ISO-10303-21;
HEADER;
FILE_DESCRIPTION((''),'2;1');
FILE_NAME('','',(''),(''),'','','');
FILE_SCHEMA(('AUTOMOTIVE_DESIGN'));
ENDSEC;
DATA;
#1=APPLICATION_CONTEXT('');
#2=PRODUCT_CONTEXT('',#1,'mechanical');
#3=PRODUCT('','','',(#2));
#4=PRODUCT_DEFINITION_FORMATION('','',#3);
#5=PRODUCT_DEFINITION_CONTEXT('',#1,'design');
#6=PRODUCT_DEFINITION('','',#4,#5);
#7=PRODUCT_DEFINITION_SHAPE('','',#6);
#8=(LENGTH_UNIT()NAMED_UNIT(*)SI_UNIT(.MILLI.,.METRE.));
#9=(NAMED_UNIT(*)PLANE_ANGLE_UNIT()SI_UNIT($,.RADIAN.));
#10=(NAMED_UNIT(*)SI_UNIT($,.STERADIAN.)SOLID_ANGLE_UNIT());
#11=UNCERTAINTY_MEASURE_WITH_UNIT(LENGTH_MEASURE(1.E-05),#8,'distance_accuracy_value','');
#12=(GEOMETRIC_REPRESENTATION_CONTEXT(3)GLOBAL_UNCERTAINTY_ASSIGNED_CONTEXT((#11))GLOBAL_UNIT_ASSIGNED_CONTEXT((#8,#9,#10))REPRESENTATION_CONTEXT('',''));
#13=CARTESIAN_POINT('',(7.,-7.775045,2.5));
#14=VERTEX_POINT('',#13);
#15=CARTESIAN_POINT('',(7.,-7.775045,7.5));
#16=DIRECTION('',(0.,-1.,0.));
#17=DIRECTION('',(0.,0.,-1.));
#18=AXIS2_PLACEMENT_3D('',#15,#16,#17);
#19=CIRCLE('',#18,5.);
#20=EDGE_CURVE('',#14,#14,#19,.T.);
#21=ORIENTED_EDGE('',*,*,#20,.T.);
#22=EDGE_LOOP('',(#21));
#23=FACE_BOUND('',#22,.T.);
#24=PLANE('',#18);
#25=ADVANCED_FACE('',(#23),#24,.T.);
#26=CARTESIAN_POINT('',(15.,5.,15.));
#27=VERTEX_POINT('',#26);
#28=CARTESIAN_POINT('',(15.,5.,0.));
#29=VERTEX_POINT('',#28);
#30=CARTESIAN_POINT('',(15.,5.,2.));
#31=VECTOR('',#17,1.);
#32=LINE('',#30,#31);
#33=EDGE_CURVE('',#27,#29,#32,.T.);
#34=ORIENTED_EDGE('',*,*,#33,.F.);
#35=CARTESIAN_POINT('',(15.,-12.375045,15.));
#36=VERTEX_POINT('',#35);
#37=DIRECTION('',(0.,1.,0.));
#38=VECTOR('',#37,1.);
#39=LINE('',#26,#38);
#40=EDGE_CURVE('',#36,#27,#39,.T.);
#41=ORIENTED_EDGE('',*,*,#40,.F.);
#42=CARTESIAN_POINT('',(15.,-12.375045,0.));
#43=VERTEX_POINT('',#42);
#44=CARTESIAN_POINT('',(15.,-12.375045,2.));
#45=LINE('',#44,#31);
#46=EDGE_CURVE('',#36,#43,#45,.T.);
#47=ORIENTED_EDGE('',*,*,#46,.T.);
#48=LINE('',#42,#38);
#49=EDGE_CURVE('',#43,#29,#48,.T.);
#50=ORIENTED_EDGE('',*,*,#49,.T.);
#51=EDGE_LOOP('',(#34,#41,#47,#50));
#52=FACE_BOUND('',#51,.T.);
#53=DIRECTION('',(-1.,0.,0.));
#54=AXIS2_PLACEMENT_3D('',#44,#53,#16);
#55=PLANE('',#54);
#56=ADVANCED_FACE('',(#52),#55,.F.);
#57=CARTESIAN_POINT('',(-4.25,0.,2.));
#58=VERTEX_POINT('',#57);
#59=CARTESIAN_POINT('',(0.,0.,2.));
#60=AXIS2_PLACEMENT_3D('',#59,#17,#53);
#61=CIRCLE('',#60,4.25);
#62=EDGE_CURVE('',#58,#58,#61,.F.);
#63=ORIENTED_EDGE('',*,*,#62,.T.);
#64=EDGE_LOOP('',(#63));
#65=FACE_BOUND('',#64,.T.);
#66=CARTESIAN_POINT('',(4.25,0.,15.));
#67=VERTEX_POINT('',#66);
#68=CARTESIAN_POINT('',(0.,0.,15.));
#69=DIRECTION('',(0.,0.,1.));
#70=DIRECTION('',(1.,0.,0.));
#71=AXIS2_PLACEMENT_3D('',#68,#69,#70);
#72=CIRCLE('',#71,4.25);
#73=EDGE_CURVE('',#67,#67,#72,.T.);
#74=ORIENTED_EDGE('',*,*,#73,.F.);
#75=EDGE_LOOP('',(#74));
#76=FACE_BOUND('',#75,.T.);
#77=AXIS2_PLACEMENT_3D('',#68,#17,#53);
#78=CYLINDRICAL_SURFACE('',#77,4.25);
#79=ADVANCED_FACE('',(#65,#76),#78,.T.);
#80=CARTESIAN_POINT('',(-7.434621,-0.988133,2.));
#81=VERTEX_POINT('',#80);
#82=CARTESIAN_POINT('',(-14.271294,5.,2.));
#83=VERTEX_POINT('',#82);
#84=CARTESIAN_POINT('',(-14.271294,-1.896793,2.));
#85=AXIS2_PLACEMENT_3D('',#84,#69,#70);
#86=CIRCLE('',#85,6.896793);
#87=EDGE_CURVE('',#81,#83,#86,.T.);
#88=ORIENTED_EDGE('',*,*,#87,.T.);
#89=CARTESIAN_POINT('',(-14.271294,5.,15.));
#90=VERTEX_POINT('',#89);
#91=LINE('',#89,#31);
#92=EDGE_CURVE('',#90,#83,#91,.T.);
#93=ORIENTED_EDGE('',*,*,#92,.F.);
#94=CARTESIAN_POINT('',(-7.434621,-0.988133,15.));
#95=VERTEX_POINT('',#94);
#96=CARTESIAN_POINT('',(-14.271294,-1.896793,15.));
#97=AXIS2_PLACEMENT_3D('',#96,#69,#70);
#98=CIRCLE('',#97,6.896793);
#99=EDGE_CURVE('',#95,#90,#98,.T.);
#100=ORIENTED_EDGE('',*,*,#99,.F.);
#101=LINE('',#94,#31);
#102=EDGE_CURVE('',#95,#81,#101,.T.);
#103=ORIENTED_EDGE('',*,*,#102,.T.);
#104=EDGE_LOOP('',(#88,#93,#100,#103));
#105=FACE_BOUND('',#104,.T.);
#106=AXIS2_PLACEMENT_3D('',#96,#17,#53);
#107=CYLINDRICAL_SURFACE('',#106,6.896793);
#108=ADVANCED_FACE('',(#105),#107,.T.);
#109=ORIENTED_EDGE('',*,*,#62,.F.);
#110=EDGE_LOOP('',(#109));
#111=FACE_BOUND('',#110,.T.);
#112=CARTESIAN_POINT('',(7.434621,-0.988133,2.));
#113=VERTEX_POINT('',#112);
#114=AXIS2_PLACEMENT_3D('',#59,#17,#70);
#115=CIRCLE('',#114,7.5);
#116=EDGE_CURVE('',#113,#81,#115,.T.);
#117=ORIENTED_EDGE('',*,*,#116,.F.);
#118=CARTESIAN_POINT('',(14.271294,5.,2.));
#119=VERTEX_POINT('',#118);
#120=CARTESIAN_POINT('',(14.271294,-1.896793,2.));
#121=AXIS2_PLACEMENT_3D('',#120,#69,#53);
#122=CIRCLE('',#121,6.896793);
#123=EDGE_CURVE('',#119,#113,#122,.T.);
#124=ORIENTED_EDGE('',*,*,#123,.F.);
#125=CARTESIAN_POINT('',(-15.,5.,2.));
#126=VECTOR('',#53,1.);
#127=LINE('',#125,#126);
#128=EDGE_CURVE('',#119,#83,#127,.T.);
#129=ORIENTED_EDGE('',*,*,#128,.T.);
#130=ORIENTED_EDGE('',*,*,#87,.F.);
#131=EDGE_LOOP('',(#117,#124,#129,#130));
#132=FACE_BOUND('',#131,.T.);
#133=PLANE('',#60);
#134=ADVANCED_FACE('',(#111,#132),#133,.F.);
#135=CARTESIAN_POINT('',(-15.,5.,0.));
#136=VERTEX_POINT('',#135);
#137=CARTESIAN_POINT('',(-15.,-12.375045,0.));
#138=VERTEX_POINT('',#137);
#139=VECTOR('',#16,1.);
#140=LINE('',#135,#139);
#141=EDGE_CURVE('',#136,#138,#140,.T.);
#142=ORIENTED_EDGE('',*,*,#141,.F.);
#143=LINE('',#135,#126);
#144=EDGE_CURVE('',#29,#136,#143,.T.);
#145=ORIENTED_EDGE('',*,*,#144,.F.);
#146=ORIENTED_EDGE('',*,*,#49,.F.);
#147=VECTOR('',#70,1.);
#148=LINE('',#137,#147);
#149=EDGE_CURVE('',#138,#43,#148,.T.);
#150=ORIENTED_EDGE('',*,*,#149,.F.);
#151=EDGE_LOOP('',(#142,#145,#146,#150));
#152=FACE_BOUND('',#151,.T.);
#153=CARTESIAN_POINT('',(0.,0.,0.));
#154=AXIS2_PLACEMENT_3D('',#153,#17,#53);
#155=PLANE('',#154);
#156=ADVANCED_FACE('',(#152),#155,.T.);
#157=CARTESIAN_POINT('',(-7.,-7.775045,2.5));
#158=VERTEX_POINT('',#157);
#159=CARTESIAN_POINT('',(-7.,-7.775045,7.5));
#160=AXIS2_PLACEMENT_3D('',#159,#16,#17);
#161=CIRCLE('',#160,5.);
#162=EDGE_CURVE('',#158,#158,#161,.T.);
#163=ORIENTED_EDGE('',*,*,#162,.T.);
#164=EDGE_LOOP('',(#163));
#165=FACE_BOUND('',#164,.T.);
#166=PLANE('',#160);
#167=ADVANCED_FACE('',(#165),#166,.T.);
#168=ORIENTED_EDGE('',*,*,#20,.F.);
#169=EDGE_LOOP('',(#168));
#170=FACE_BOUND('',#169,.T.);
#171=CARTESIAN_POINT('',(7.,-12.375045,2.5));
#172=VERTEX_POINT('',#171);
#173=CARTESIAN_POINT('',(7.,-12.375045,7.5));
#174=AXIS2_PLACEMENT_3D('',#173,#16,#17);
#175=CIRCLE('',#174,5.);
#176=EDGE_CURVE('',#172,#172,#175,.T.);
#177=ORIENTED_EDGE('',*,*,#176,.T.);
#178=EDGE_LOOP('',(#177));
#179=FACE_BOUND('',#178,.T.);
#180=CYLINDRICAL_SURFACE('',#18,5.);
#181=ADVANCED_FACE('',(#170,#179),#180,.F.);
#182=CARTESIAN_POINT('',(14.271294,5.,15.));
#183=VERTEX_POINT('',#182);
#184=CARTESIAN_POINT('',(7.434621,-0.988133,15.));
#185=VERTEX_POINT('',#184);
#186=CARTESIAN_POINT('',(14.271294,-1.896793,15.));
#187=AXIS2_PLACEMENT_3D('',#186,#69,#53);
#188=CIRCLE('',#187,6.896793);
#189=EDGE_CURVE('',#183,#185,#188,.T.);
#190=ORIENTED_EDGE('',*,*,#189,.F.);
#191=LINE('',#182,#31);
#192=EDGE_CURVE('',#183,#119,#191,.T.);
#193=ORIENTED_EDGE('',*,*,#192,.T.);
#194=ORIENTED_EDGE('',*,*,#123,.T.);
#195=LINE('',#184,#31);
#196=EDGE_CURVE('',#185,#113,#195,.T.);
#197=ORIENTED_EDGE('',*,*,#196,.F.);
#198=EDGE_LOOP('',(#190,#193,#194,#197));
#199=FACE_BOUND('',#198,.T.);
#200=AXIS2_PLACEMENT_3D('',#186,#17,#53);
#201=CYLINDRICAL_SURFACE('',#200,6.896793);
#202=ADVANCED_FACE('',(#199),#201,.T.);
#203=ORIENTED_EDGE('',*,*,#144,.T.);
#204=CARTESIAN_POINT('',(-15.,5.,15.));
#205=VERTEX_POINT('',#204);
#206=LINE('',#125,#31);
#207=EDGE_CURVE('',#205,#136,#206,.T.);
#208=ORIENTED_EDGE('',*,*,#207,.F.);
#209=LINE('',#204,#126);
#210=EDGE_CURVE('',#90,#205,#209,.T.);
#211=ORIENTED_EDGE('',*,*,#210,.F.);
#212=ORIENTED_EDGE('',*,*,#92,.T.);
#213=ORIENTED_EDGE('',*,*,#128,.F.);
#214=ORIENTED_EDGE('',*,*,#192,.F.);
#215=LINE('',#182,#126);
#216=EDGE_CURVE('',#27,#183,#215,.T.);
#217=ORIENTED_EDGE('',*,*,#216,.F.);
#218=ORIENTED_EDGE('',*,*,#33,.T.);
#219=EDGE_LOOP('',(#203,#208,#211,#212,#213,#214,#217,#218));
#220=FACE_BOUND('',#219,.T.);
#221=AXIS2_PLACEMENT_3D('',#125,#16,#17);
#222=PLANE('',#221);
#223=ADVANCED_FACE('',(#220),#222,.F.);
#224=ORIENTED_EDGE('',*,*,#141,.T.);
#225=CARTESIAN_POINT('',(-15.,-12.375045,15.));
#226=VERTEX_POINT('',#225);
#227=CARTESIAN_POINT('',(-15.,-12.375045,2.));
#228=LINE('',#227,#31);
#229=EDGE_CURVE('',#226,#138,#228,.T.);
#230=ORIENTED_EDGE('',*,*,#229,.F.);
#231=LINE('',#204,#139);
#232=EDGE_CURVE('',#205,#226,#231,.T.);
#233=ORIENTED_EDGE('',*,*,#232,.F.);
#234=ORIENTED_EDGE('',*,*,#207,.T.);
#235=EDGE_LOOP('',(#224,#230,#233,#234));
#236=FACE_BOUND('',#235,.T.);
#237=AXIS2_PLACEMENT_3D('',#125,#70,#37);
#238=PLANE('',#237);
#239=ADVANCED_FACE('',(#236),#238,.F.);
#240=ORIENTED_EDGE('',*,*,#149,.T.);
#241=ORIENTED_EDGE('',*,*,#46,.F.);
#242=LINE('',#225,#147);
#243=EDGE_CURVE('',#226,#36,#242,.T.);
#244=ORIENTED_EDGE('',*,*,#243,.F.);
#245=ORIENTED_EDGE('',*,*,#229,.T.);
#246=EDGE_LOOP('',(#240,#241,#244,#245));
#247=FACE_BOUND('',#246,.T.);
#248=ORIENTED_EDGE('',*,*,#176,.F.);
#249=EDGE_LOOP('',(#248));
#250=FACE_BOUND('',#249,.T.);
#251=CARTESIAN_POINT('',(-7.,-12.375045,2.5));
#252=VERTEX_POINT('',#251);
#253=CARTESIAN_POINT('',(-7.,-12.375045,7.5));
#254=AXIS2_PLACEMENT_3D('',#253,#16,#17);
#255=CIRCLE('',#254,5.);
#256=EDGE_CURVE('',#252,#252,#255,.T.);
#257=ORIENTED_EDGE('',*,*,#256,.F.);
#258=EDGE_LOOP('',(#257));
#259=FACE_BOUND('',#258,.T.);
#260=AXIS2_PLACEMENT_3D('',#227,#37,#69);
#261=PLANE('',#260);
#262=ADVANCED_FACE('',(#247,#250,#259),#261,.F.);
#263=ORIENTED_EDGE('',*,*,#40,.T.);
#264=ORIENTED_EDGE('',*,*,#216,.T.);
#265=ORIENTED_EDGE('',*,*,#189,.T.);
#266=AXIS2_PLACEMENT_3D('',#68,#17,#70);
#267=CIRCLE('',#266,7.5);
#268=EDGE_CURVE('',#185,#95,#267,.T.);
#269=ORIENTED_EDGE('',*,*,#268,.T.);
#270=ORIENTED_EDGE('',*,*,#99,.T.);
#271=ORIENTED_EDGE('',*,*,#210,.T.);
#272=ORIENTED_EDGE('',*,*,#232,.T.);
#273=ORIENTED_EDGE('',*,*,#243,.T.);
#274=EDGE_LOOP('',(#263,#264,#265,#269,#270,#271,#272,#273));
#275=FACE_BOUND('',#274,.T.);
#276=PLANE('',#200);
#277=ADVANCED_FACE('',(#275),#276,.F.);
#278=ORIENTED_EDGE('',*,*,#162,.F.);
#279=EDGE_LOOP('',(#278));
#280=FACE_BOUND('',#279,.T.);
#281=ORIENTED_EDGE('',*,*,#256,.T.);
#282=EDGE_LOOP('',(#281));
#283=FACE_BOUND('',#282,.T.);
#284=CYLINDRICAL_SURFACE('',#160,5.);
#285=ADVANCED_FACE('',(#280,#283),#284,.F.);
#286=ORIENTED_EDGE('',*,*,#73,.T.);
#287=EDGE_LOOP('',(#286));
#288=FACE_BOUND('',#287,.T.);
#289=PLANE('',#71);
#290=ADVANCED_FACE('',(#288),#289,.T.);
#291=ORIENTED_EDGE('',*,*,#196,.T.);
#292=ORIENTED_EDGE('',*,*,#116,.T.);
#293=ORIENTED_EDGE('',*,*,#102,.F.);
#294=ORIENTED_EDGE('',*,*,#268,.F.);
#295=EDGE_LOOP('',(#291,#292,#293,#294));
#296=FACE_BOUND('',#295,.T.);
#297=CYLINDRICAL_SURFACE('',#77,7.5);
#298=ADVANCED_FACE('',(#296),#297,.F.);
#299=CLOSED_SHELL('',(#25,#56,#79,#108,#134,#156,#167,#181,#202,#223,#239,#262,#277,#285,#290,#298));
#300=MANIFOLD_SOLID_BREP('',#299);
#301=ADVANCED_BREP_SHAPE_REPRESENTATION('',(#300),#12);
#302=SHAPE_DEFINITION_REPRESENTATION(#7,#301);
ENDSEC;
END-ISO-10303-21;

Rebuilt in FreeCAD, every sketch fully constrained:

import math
import FreeCAD as App
import Part
import Sketcher
from FreeCAD import Vector


def add_polygon(sketch, points):
    """Adds a closed chain of lines whose ends are joined by coincident constraints."""
    first, n = sketch.GeometryCount, len(points)
    for a, b in zip(points, points[1:] + points[:1]):
        sketch.addGeometry(Part.LineSegment(App.Vector(*a, 0), App.Vector(*b, 0)), False)
    for i in range(n):
        sketch.addConstraint(Sketcher.Constraint("Coincident", first + i, 2, first + (i + 1) % n, 1))

doc = App.newDocument("Part")
body = doc.addObject("PartDesign::Body", "Body")

# Sketch on XY plane
sketch1 = doc.addObject("Sketcher::SketchObject", "Sketch")
body.addObject(sketch1)
sketch1.AttachmentSupport = (doc.XY_Plane, [""])
sketch1.MapMode = "FlatFace"
add_polygon(sketch1, [(-15, 5), (-15, -12), (15, -12), (15, 5)])  # lines 0-3
sketch1.addConstraint(Sketcher.Constraint("Vertical", 0))
sketch1.addConstraint(Sketcher.Constraint("Horizontal", 1))
sketch1.addConstraint(Sketcher.Constraint("Vertical", 2))
sketch1.addConstraint(Sketcher.Constraint("Horizontal", 3))
sketch1.addConstraint(Sketcher.Constraint("DistanceX", 1, 1, 1, 2, 30.0))
sketch1.addConstraint(Sketcher.Constraint("DistanceX", 0, 2, -1, 1, 15.0))
sketch1.addConstraint(Sketcher.Constraint("DistanceY", -1, 1, 2, 2, 5.0))
sketch1.addConstraint(Sketcher.Constraint("DistanceY", 0, 2, 0, 1, 17.375045))
pad1 = doc.addObject("PartDesign::Pad", "Pad")
body.addObject(pad1)
pad1.Profile = sketch1
pad1.Length = 2

# Sketch on XY plane
sketch2 = doc.addObject("Sketcher::SketchObject", "Sketch001")
body.addObject(sketch2)
sketch2.AttachmentSupport = (doc.XY_Plane, [""])
sketch2.MapMode = "FlatFace"
sketch2.AttachmentOffset = App.Placement(Vector(0, 0, 2), App.Rotation())
sketch2.addGeometry(Part.Circle(Vector(0, 0, 0), Vector(0, 0, 1), 4.2), False)
sketch2.addGeometry(Part.LineSegment(Vector(-14.3, 5, 0), Vector(-15, 5, 0)), False)
sketch2.addGeometry(Part.LineSegment(Vector(-15, 5, 0), Vector(-15, -12.4, 0)), False)
sketch2.addGeometry(Part.LineSegment(Vector(-15, -12.4, 0), Vector(15, -12.4, 0)), False)
sketch2.addGeometry(Part.LineSegment(Vector(15, -12.4, 0), Vector(15, 5, 0)), False)
sketch2.addGeometry(Part.LineSegment(Vector(15, 5, 0), Vector(14.3, 5, 0)), False)
sketch2.addGeometry(Part.ArcOfCircle(Part.Circle(Vector(14.3, -1.9, 0), Vector(0, 0, 1), 6.9), math.radians(90), math.radians(172)), False)
sketch2.addGeometry(Part.ArcOfCircle(Part.Circle(Vector(0, 0, 0), Vector(0, 0, 1), 7.5), math.radians(-172), math.radians(-8)), False)
sketch2.addGeometry(Part.ArcOfCircle(Part.Circle(Vector(-14.3, -1.9, 0), Vector(0, 0, 1), 6.9), math.radians(8), math.radians(90)), False)
sketch2.addConstraint(Sketcher.Constraint("Coincident", 1, 2, 2, 1))
sketch2.addConstraint(Sketcher.Constraint("Coincident", 2, 2, 3, 1))
sketch2.addConstraint(Sketcher.Constraint("Coincident", 3, 2, 4, 1))
sketch2.addConstraint(Sketcher.Constraint("Coincident", 4, 2, 5, 1))
sketch2.addConstraint(Sketcher.Constraint("Tangent", 5, 2, 6, 1))
sketch2.addConstraint(Sketcher.Constraint("Tangent", 6, 2, 7, 2))
sketch2.addConstraint(Sketcher.Constraint("Tangent", 7, 1, 8, 1))
sketch2.addConstraint(Sketcher.Constraint("Tangent", 8, 2, 1, 1))
sketch2.addConstraint(Sketcher.Constraint("Horizontal", 1))
sketch2.addConstraint(Sketcher.Constraint("Vertical", 2))
sketch2.addConstraint(Sketcher.Constraint("Horizontal", 3))
sketch2.addConstraint(Sketcher.Constraint("Vertical", 4))
sketch2.addConstraint(Sketcher.Constraint("Horizontal", 5))
sketch2.addConstraint(Sketcher.Constraint("Coincident", 0, 3, -1, 1))
sketch2.addConstraint(Sketcher.Constraint("Coincident", 7, 3, -1, 1))
sketch2.addConstraint(Sketcher.Constraint("Equal", 6, 8))
sketch2.addConstraint(Sketcher.Constraint("Symmetric", 1, 2, 4, 2, -2))
sketch2.addConstraint(Sketcher.Constraint("Diameter", 0, 8.5))
sketch2.addConstraint(Sketcher.Constraint("Radius", 7, 7.5))
sketch2.addConstraint(Sketcher.Constraint("DistanceX", 3, 1, 3, 2, 30.0))
sketch2.addConstraint(Sketcher.Constraint("DistanceY", -1, 1, 1, 2, 5.0))
sketch2.addConstraint(Sketcher.Constraint("Radius", 6, 6.896793))
sketch2.addConstraint(Sketcher.Constraint("DistanceY", 2, 2, 2, 1, 17.375045))
pad2 = doc.addObject("PartDesign::Pad", "Pad001")
body.addObject(pad2)
pad2.Profile = sketch2
pad2.Length = 13

# Sketch on XZ plane
sketch3 = doc.addObject("Sketcher::SketchObject", "Sketch002")
body.addObject(sketch3)
sketch3.AttachmentSupport = (doc.XZ_Plane, [""])
sketch3.MapMode = "FlatFace"
sketch3.AttachmentOffset = App.Placement(Vector(0, 0, 12.375045), App.Rotation())
sketch3.addGeometry(Part.Circle(Vector(-7, 8, 0), Vector(0, 0, 1), 5), False)
sketch3.addGeometry(Part.Circle(Vector(7, 8, 0), Vector(0, 0, 1), 5), False)
sketch3.addConstraint(Sketcher.Constraint("Equal", 0, 1))
sketch3.addConstraint(Sketcher.Constraint("Symmetric", 0, 3, 1, 3, -2))
sketch3.addConstraint(Sketcher.Constraint("Diameter", 0, 10.0))
sketch3.addConstraint(Sketcher.Constraint("DistanceX", 0, 3, -1, 1, 7.0))
sketch3.addConstraint(Sketcher.Constraint("DistanceY", -1, 1, 0, 3, 7.5))
pocket1 = doc.addObject("PartDesign::Pocket", "Pocket")
body.addObject(pocket1)
pocket1.Profile = sketch3
pocket1.Length = 4.6

doc.recompute()
